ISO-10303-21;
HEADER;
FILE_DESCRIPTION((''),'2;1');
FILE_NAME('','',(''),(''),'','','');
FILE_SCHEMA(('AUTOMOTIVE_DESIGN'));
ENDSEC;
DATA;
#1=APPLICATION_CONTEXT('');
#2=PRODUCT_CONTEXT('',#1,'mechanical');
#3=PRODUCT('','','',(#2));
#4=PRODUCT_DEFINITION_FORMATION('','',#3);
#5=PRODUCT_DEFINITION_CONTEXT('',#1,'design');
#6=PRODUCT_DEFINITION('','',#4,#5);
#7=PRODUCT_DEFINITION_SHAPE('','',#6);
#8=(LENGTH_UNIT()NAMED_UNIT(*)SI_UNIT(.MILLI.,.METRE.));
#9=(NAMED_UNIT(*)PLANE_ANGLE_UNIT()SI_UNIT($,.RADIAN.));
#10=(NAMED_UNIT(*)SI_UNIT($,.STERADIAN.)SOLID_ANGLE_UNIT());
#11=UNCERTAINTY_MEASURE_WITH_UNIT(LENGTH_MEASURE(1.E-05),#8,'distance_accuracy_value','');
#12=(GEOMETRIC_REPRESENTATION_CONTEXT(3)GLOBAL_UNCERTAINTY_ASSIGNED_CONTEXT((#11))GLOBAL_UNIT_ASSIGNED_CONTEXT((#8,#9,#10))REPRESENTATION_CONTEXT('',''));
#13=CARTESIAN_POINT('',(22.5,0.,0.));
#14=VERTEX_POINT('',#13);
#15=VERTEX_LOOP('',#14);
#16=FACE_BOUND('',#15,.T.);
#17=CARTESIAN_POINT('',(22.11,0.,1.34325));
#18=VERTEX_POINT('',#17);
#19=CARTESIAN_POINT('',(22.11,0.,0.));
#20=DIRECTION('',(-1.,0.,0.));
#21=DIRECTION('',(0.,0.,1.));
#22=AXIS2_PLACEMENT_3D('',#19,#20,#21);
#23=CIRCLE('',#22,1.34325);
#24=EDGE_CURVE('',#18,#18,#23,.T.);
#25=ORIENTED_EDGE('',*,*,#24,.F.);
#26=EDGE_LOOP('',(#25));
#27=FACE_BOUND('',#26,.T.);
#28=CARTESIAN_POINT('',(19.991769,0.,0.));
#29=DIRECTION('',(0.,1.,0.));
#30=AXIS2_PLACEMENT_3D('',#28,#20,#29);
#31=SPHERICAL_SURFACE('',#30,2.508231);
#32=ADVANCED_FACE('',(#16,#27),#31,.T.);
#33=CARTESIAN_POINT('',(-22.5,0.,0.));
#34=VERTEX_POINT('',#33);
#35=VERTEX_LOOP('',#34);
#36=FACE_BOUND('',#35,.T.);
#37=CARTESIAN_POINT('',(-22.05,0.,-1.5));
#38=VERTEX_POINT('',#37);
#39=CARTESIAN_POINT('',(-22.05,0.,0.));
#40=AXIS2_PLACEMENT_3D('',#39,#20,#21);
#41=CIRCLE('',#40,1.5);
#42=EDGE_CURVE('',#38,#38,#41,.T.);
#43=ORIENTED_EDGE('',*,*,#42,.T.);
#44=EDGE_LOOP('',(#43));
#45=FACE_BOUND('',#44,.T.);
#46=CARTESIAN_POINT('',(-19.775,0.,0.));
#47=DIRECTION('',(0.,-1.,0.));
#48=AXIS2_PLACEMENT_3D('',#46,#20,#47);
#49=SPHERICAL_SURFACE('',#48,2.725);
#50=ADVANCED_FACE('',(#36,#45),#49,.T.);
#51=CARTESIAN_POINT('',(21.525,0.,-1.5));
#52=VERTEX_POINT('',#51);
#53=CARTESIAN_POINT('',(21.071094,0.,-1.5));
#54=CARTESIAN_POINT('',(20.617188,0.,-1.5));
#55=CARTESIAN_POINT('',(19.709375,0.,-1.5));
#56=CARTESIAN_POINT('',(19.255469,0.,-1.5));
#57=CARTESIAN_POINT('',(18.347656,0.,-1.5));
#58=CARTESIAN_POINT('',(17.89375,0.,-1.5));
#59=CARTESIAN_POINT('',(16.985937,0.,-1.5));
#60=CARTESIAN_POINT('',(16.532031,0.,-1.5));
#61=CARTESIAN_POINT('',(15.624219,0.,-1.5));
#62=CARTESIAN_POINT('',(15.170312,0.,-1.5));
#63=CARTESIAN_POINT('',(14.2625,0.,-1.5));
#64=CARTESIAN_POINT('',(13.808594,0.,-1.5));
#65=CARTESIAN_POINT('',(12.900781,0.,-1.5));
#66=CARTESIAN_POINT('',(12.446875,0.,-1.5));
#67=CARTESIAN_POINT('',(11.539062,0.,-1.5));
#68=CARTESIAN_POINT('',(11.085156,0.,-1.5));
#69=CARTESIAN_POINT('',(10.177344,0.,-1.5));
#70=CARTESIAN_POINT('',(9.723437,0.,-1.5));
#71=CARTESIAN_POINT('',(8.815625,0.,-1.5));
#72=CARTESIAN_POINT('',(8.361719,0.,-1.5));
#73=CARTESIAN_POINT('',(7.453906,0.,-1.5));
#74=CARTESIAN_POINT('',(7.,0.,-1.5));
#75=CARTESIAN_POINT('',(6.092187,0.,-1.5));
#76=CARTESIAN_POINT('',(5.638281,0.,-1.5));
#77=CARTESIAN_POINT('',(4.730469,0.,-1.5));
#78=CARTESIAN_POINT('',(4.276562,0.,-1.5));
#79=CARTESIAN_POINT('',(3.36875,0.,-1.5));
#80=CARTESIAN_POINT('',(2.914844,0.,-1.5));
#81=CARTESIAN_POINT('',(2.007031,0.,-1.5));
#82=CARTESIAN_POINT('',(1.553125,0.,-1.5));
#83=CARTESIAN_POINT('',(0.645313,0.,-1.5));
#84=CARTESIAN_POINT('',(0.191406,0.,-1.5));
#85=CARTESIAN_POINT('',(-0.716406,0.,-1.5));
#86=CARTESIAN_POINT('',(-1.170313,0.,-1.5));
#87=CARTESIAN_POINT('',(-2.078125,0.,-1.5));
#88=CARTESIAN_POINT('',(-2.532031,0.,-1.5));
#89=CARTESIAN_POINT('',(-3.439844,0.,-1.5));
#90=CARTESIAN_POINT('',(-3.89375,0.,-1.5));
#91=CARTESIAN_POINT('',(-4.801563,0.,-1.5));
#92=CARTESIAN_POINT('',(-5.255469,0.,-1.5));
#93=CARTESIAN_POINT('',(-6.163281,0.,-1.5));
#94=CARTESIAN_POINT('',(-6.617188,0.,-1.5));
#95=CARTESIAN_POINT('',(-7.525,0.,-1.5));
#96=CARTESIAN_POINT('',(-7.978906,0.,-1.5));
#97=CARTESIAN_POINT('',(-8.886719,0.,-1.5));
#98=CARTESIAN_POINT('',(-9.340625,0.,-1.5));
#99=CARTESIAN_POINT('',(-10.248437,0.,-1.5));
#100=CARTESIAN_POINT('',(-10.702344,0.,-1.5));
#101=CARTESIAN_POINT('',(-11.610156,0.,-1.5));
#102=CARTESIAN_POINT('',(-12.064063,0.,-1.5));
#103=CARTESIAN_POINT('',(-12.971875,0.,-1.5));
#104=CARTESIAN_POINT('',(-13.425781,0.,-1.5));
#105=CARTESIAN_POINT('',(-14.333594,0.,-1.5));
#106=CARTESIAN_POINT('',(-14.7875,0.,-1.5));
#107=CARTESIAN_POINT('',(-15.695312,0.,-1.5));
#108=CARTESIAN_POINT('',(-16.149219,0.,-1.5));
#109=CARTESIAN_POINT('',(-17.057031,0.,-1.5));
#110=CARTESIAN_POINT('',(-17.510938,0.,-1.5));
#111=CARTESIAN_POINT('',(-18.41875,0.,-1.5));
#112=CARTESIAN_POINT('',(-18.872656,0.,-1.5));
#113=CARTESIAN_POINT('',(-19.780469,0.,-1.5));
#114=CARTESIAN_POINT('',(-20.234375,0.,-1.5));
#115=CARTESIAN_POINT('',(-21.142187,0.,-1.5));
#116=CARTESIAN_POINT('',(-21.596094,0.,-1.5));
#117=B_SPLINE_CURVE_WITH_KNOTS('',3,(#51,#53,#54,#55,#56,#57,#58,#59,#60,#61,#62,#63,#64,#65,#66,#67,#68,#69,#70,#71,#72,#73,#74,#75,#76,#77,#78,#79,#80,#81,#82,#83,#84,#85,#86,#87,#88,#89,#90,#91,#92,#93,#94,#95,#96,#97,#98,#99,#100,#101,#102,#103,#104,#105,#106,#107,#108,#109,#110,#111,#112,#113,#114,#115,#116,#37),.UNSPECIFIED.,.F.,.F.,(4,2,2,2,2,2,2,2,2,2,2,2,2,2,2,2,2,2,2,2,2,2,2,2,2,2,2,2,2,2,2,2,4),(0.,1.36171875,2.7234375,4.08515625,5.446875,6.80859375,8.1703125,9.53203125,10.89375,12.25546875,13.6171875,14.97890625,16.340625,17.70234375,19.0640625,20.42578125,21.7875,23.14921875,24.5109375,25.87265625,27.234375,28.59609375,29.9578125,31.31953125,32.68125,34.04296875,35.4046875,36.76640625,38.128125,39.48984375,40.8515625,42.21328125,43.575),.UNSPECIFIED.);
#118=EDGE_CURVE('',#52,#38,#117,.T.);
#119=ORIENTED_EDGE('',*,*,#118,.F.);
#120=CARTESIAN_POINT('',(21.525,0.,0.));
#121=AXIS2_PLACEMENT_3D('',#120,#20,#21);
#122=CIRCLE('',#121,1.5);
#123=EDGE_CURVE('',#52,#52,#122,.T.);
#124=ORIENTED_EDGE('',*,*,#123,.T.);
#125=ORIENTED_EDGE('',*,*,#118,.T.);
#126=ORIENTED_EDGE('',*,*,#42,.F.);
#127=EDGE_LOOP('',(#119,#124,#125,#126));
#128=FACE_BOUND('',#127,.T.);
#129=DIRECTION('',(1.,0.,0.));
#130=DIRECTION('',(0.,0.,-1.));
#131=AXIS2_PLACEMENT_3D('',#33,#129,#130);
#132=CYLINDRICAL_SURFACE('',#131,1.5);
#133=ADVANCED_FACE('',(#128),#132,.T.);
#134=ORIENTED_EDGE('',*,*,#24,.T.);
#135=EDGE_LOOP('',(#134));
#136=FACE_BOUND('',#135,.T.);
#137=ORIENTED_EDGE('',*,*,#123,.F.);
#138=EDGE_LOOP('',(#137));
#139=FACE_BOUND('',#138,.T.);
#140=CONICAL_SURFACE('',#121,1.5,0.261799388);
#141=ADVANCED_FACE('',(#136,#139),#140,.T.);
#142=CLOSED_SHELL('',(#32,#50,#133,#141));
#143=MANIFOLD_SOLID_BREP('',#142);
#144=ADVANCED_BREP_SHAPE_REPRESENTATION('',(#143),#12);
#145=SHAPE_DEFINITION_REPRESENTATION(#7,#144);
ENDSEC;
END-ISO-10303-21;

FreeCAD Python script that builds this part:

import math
import FreeCAD as App
import Part
import Sketcher
Q = App.Units.Quantity

doc = App.newDocument("Part")
params = doc.addObject("Spreadsheet::Sheet", "Params")
for row, (alias, value) in enumerate([
    ("sketch1_diameter", "3 mm"),
    ("pad1_length", "22.5 mm"),
    ("pad1_length2", "22.5 mm"),
    ("sketch2_height", "2 mm"),
    ("sketch2_width", "0.5 mm"),
    ("groove_angle", "360 deg"),
], start=1):
    params.set(f"A{row}", alias)
    params.set(f"B{row}", "=" + value)
    params.setAlias(f"B{row}", alias)

body = doc.addObject("PartDesign::Body", "Body")

# Sketch on YZ plane
sketch1 = body.newObject("Sketcher::SketchObject", "Sketch")
sketch1.AttachmentSupport = (doc.getObject("YZ_Plane"), [""])
sketch1.MapMode = "FlatFace"
sketch1.addGeometry(Part.Circle(App.Vector(0, 0, 0), App.Vector(0, 0, 1), 1.5), False)
sketch1.addConstraint(Sketcher.Constraint("Coincident", 0, 3, -1, 1))
sketch1.addConstraint(Sketcher.Constraint("Diameter", 0, 3.0))
sketch1.setExpression("Constraints[1]", "Params.sketch1_diameter")
pad1 = body.newObject("PartDesign::Pad", "Pad")
pad1.Profile = sketch1
pad1.Type = "TwoLengths"
pad1.setExpression("Length", "Params.pad1_length")
pad1.setExpression("Length2", "Params.pad1_length2")

# Sketch on XY plane
sketch2 = body.newObject("Sketcher::SketchObject", "Sketch001")
sketch2.AttachmentSupport = (doc.getObject("XY_Plane"), [""])
sketch2.MapMode = "FlatFace"
sketch2.addGeometry(Part.LineSegment(App.Vector(21.525, 2, 0), App.Vector(21.525, 1.5, 0)), False)
sketch2.addGeometry(Part.LineSegment(App.Vector(21.525, 1.5, 0), App.Vector(22.11, 1.34325, 0)), False)
sketch2.addGeometry(Part.ArcOfCircle(Part.Circle(App.Vector(19.991769, 0, 0), App.Vector(0, 0, 1), 2.508231), math.radians(0), math.radians(32.380322)), False)
sketch2.addGeometry(Part.LineSegment(App.Vector(22.5, 0, 0), App.Vector(23, 0, 0)), False)
sketch2.addGeometry(Part.LineSegment(App.Vector(23, 0, 0), App.Vector(23, 2, 0)), False)
sketch2.addGeometry(Part.LineSegment(App.Vector(23, 2, 0), App.Vector(21.525, 2, 0)), False)
sketch2.addGeometry(Part.LineSegment(App.Vector(-22.05, 1.5, 0), App.Vector(-22.05, 2, 0)), False)
sketch2.addGeometry(Part.LineSegment(App.Vector(-22.05, 2, 0), App.Vector(-23, 2, 0)), False)
sketch2.addGeometry(Part.LineSegment(App.Vector(-23, 2, 0), App.Vector(-23, 0, 0)), False)
sketch2.addGeometry(Part.LineSegment(App.Vector(-23, 0, 0), App.Vector(-22.5, 0, 0)), False)
sketch2.addGeometry(Part.ArcOfCircle(Part.Circle(App.Vector(-19.775, 0, 0), App.Vector(0, 0, 1), 2.725), math.radians(146.601512), math.radians(180)), False)
sketch2.addConstraint(Sketcher.Constraint("Coincident", 0, 2, 1, 1))
sketch2.addConstraint(Sketcher.Constraint("Coincident", 1, 2, 2, 2))
sketch2.addConstraint(Sketcher.Constraint("Coincident", 2, 1, 3, 1))
sketch2.addConstraint(Sketcher.Constraint("Coincident", 3, 2, 4, 1))
sketch2.addConstraint(Sketcher.Constraint("Coincident", 4, 2, 5, 1))
sketch2.addConstraint(Sketcher.Constraint("Coincident", 5, 2, 0, 1))
sketch2.addConstraint(Sketcher.Constraint("Coincident", 6, 2, 7, 1))
sketch2.addConstraint(Sketcher.Constraint("Coincident", 7, 2, 8, 1))
sketch2.addConstraint(Sketcher.Constraint("Coincident", 8, 2, 9, 1))
sketch2.addConstraint(Sketcher.Constraint("Coincident", 9, 2, 10, 2))
sketch2.addConstraint(Sketcher.Constraint("Coincident", 10, 1, 6, 1))
sketch2.addConstraint(Sketcher.Constraint("Vertical", 0))
sketch2.addConstraint(Sketcher.Constraint("Horizontal", 3))
sketch2.addConstraint(Sketcher.Constraint("Vertical", 4))
sketch2.addConstraint(Sketcher.Constraint("Horizontal", 5))
sketch2.addConstraint(Sketcher.Constraint("Vertical", 6))
sketch2.addConstraint(Sketcher.Constraint("Horizontal", 7))
sketch2.addConstraint(Sketcher.Constraint("Vertical", 8))
sketch2.addConstraint(Sketcher.Constraint("Horizontal", 9))
sketch2.addConstraint(Sketcher.Constraint("Symmetric", 3, 2, 8, 2, -1, 1))
sketch2.addConstraint(Sketcher.Constraint("Symmetric", 2, 1, 9, 2, -2))
sketch2.addConstraint(Sketcher.Constraint("PointOnObject", 2, 3, -1))
sketch2.addConstraint(Sketcher.Constraint("PointOnObject", 10, 3, -1))
sketch2.addConstraint(Sketcher.Constraint("Horizontal", 5, 2, 6, 2))
sketch2.addConstraint(Sketcher.Constraint("Horizontal", 0, 2, 10, 1))
sketch2.addConstraint(Sketcher.Constraint("Equal", 9, 0))
sketch2.addConstraint(Sketcher.Constraint("DistanceY", 4, 1, 4, 2, 2.0))
sketch2.addConstraint(Sketcher.Constraint("Angle", 1, Q("-15 deg")))
sketch2.addConstraint(Sketcher.Constraint("DistanceX", 3, 1, 3, 2, 0.5))
sketch2.addConstraint(Sketcher.Constraint("DistanceX", -1, 1, 3, 2, 23.0))
sketch2.addConstraint(Sketcher.Constraint("Radius", 10, 2.725))
sketch2.addConstraint(Sketcher.Constraint("DistanceX", 10, 3, 0, 2, 41.3))
sketch2.addConstraint(Sketcher.Constraint("DistanceX", -1, 1, 1, 2, 22.11))
sketch2.setExpression("Constraints[26]", "Params.sketch2_height")
sketch2.setExpression("Constraints[28]", "Params.sketch2_width")
groove = body.newObject("PartDesign::Groove", "Groove")
groove.Profile = sketch2
groove.ReferenceAxis = (sketch2, ["H_Axis"])
groove.setExpression("Angle", "Params.groove_angle")

doc.recompute()
